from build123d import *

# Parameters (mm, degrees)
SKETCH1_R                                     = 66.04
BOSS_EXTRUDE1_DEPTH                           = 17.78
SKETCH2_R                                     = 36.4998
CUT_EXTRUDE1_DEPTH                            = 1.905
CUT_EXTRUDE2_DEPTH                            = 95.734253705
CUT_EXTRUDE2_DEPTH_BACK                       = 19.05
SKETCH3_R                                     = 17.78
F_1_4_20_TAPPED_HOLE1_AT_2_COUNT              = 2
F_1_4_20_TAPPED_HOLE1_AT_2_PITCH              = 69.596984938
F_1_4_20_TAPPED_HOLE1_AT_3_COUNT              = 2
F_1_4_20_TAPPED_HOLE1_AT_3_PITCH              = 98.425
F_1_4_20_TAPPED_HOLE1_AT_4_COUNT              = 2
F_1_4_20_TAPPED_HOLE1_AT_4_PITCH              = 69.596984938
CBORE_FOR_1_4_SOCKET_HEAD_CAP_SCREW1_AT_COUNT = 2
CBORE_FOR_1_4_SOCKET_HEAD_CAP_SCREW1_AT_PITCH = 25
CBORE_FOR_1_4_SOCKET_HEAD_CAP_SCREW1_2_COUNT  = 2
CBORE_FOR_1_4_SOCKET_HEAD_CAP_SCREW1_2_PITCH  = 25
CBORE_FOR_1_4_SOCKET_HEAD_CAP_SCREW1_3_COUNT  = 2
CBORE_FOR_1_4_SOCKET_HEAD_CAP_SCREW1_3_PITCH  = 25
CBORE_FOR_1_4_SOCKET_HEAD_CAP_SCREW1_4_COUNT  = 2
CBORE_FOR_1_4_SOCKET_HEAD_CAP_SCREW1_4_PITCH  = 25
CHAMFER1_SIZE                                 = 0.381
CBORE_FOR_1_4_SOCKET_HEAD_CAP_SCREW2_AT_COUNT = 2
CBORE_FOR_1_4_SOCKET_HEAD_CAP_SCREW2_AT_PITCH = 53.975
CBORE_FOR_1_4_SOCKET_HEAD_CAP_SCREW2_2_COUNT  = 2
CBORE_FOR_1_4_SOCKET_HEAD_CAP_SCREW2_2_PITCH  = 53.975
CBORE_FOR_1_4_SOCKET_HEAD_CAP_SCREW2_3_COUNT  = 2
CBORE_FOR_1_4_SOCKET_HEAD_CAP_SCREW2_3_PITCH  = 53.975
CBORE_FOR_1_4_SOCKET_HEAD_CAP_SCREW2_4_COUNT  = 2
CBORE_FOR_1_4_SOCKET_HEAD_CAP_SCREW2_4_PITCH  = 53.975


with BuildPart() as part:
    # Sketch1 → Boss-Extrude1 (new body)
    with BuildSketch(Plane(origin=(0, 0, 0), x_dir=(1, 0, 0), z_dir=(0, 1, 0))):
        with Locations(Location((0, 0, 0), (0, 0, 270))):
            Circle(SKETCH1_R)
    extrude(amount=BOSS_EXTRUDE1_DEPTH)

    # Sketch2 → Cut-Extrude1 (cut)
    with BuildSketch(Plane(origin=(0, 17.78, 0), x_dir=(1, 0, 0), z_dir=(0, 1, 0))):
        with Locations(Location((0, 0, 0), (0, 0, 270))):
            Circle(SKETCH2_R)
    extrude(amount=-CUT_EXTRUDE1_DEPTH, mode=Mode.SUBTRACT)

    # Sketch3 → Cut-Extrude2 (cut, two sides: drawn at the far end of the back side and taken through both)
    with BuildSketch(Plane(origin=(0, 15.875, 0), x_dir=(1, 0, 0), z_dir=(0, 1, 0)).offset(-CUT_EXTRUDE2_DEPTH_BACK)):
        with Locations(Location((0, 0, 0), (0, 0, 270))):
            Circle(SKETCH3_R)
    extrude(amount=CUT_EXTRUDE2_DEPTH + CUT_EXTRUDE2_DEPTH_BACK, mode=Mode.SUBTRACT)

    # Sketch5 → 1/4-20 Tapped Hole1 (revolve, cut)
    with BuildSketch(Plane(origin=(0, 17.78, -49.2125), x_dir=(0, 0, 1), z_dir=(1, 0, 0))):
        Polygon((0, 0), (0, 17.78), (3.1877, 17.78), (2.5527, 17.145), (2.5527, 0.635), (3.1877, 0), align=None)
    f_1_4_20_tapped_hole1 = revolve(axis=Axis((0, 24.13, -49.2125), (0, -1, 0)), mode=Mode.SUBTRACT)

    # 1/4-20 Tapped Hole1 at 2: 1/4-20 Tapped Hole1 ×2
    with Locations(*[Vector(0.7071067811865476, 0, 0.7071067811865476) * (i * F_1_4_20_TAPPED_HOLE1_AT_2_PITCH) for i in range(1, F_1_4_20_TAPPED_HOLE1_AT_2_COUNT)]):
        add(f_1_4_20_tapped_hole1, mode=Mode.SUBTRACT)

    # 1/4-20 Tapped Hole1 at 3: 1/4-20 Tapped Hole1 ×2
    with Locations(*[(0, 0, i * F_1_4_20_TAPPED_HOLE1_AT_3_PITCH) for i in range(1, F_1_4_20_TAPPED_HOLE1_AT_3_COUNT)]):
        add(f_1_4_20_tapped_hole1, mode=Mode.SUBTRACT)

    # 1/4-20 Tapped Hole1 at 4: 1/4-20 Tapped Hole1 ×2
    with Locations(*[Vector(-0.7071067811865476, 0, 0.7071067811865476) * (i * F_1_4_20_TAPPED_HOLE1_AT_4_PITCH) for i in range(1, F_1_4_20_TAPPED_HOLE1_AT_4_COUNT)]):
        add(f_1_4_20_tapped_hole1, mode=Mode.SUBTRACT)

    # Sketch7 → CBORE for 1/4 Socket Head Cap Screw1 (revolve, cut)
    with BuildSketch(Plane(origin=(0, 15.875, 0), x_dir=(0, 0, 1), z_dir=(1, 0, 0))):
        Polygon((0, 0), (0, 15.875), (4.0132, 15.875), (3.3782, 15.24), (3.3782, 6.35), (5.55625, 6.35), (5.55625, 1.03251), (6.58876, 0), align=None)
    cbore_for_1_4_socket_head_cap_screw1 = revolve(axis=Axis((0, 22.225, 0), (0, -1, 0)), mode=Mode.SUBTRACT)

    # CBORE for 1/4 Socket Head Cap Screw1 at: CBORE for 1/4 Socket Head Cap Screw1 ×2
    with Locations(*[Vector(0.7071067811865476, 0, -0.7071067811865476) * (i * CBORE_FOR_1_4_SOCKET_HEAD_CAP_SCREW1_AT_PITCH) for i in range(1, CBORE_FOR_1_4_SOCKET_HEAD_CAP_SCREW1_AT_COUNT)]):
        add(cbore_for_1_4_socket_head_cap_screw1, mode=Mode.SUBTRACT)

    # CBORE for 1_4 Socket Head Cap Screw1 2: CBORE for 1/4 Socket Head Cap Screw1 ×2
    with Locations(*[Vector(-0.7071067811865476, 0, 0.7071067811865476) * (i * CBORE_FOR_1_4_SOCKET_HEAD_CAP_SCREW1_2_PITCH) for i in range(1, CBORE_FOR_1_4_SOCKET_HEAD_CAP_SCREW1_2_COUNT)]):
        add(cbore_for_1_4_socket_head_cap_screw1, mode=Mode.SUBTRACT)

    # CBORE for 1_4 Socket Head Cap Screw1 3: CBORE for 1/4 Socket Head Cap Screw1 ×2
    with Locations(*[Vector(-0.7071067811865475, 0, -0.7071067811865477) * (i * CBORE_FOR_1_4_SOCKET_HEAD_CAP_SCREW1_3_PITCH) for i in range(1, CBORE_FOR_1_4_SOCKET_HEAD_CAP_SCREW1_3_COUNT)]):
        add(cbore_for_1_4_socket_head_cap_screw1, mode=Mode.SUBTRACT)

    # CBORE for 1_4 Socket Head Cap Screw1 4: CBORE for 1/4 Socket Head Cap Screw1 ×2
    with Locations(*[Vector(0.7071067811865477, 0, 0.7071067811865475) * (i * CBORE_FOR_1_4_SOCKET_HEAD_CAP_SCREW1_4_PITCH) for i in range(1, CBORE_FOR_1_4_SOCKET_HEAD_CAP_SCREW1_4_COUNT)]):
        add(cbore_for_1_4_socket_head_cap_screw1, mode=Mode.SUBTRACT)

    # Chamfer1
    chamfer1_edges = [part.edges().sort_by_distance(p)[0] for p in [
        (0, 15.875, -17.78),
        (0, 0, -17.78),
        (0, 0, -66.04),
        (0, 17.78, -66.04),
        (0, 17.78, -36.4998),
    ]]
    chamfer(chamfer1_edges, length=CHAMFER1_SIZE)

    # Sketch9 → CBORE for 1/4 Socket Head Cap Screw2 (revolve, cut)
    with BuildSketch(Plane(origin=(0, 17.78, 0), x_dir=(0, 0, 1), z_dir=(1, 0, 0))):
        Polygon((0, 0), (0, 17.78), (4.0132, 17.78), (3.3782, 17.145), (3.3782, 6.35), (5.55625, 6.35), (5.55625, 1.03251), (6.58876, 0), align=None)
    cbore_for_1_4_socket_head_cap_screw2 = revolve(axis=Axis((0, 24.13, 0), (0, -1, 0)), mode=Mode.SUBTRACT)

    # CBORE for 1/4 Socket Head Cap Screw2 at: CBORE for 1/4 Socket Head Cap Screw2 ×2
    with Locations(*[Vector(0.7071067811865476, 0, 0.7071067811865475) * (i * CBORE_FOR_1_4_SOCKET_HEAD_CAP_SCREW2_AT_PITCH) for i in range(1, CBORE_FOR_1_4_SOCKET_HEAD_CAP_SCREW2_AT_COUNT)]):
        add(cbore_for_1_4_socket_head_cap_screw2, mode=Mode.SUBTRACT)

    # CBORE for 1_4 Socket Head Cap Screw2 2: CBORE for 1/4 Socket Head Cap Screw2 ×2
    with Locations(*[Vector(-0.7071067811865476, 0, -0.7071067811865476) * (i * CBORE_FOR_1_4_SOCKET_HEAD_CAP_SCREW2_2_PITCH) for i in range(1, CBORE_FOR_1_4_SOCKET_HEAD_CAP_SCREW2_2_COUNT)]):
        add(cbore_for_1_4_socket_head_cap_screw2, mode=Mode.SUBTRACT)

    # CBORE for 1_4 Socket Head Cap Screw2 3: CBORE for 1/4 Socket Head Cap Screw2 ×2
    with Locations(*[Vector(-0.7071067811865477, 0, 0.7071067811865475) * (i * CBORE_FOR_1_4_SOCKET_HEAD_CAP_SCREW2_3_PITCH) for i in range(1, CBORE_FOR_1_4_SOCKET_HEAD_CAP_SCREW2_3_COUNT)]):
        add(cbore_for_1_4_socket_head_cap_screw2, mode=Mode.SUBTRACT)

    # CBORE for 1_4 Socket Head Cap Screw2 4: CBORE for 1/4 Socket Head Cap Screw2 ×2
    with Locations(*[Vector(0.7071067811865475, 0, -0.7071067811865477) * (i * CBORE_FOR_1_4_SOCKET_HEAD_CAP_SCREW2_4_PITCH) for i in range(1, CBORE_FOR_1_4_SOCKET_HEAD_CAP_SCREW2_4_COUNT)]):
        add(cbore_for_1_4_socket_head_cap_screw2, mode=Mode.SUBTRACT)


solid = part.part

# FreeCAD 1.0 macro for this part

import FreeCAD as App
import Part
import Sketcher
from FreeCAD import Vector
Q = App.Units.Quantity


def edges_at(feature, points):
    """Names of the edges that pass closest to the given points."""
    edges = feature.Shape.Edges
    near = lambda p: min(range(len(edges)), key=lambda i: edges[i].distToShape(Part.Vertex(*p))[0])
    return sorted({f"Edge{near(p) + 1}" for p in points})


def add_polygon(sketch, points):
    """Adds a closed chain of lines whose ends are joined by coincident constraints."""
    first, n = sketch.GeometryCount, len(points)
    for a, b in zip(points, points[1:] + points[:1]):
        sketch.addGeometry(Part.LineSegment(App.Vector(*a, 0), App.Vector(*b, 0)), False)
    for i in range(n):
        sketch.addConstraint(Sketcher.Constraint("Coincident", first + i, 2, first + (i + 1) % n, 1))

doc = App.newDocument("Part")
body = doc.addObject("PartDesign::Body", "Body")

# Sketch on XZ plane
sketch1 = body.newObject("Sketcher::SketchObject", "Sketch")
sketch1.AttachmentSupport = (doc.getObject("XZ_Plane"), [""])
sketch1.MapMode = "FlatFace"
sketch1.addGeometry(Part.Circle(Vector(0, 0, 0), Vector(0, 0, 1), 66), False)
sketch1.addConstraint([
    Sketcher.Constraint("Coincident", 0, 3, -1, 1),
    Sketcher.Constraint("Diameter", 0, Q("5.2 in")),
])
pad1 = body.newObject("PartDesign::Pad", "Pad")
pad1.Profile = sketch1
pad1.Length = Q("0.7 in")
pad1.Reversed = True

# Sketch on XZ plane
sketch2 = body.newObject("Sketcher::SketchObject", "Sketch001")
sketch2.AttachmentSupport = (doc.getObject("XZ_Plane"), [""])
sketch2.MapMode = "FlatFace"
sketch2.AttachmentOffset = App.Placement(Vector(0, 0, -0.7 * 25.4), App.Rotation())
sketch2.addGeometry(Part.Circle(Vector(0, 0, 0), Vector(0, 0, 1), 36), False)
sketch2.addConstraint([
    Sketcher.Constraint("Coincident", 0, 3, -1, 1),
    Sketcher.Constraint("Diameter", 0, Q("2.874 in")),
])
pocket1 = body.newObject("PartDesign::Pocket", "Pocket")
pocket1.Profile = sketch2
pocket1.Length = Q("0.075 in")
pocket1.Reversed = True

# Sketch on XZ plane
sketch3 = body.newObject("Sketcher::SketchObject", "Sketch002")
sketch3.AttachmentSupport = (doc.getObject("XZ_Plane"), [""])
sketch3.MapMode = "FlatFace"
sketch3.AttachmentOffset = App.Placement(Vector(0, 0, -0.625 * 25.4), App.Rotation())
sketch3.addGeometry(Part.Circle(Vector(0, 0, 0), Vector(0, 0, 1), 18), False)
sketch3.addConstraint([
    Sketcher.Constraint("Coincident", 0, 3, -1, 1),
    Sketcher.Constraint("Diameter", 0, Q("1.4 in")),
])
pocket2 = body.newObject("PartDesign::Pocket", "Pocket001")
pocket2.Profile = sketch3
pocket2.Type = "ThroughAll"
pocket2.Midplane = True

# Sketch on YZ plane
sketch4 = body.newObject("Sketcher::SketchObject", "Sketch003")
sketch4.AttachmentSupport = (doc.getObject("YZ_Plane"), [""])
sketch4.MapMode = "FlatFace"
add_polygon(sketch4, [(0, -49.2), (17.8, -49.2), (17.8, -46), (17.1, -46.7), (0.6, -46.7), (0, -46)])  # lines 0-5
sketch4.addGeometry(Part.LineSegment(Vector(17.8, -49.2, 0), Vector(0, -49.2, 0)), True)  # axis
sketch4.addConstraint([
    Sketcher.Constraint("Horizontal", 0),
    Sketcher.Constraint("Vertical", 1),
    Sketcher.Constraint("Horizontal", 3),
    Sketcher.Constraint("Vertical", 5),
    Sketcher.Constraint("Horizontal", 6),
    Sketcher.Constraint("Coincident", 6, 1, 0, 2),
    Sketcher.Constraint("PointOnObject", 4, 2, -2),
    Sketcher.Constraint("PointOnObject", 6, 2, -2),
    Sketcher.Constraint("Perpendicular", 2, 4),
    Sketcher.Constraint("Horizontal", 1, 2, 4, 2),
    Sketcher.Constraint("Equal", 2, 4),
    Sketcher.Constraint("DistanceX", 0, 1, 0, 2, Q("0.7 in")),
    Sketcher.Constraint("DistanceX", 3, 2, 3, 1, Q("0.65 in")),
    Sketcher.Constraint("DistanceY", 1, 1, 1, 2, Q("0.1255 in")),
    Sketcher.Constraint("DistanceY", 0, 2, -1, 1, Q("1.9375 in")),
])
groove = body.newObject("PartDesign::Groove", "Groove")
groove.Profile = sketch4
groove.ReferenceAxis = (sketch4, ["Axis0"])
groove.Angle = 360
doc.recompute()

datumline = body.newObject("PartDesign::Line", "DatumLine")
datumline.Placement = App.Placement(Vector(0, 0, 0), App.Rotation(Vector(0, 0, 1), Vector(0.707106781, 0, 0.707106781)))
linearpattern = body.newObject("PartDesign::LinearPattern", "LinearPattern")
linearpattern.Originals = [groove]
linearpattern.Direction = (datumline, [""])
linearpattern.Mode = "offset"
linearpattern.Offset = 69.596985
linearpattern.Occurrences = 2
body.Tip = linearpattern
doc.recompute()

linearpattern2 = body.newObject("PartDesign::LinearPattern", "LinearPattern001")
linearpattern2.Originals = [groove]
linearpattern2.Direction = (doc.getObject("Z_Axis"), [""])
linearpattern2.Mode = "offset"
linearpattern2.Offset = Q("3.875 in")
linearpattern2.Occurrences = 2
body.Tip = linearpattern2
doc.recompute()

datumline2 = body.newObject("PartDesign::Line", "DatumLine001")
datumline2.Placement = App.Placement(Vector(0, 0, 0), App.Rotation(Vector(0, 0, 1), Vector(-0.707106781, 0, 0.707106781)))
linearpattern3 = body.newObject("PartDesign::LinearPattern", "LinearPattern002")
linearpattern3.Originals = [groove]
linearpattern3.Direction = (datumline2, [""])
linearpattern3.Mode = "offset"
linearpattern3.Offset = 69.596985
linearpattern3.Occurrences = 2
body.Tip = linearpattern3

# Sketch on YZ plane
sketch5 = body.newObject("Sketcher::SketchObject", "Sketch004")
sketch5.AttachmentSupport = (doc.getObject("YZ_Plane"), [""])
sketch5.MapMode = "FlatFace"
add_polygon(sketch5, [(0, 0), (15.9, 0), (15.9, 6.6), (14.8, 5.6), (9.5, 5.6), (9.5, 3.4), (0.6, 3.4), (0, 4)])  # lines 0-7
sketch5.addConstraint([
    Sketcher.Constraint("Horizontal", 0),
    Sketcher.Constraint("Vertical", 1),
    Sketcher.Constraint("Horizontal", 3),
    Sketcher.Constraint("Vertical", 4),
    Sketcher.Constraint("Horizontal", 5),
    Sketcher.Constraint("Vertical", 7),
    Sketcher.Constraint("Coincident", 7, 2, -1, 1),
    Sketcher.Constraint("Perpendicular", 2, 6),
    Sketcher.Constraint("Angle", 2, Q("-135 deg")),
    Sketcher.Constraint("DistanceX", 5, 2, 5, 1, Q("0.35 in")),
    Sketcher.Constraint("DistanceX", 5, 2, 1, 2, Q("0.6 in")),
    Sketcher.Constraint("DistanceX", 0, 1, 0, 2, Q("0.625 in")),
    Sketcher.Constraint("DistanceY", 7, 2, 7, 1, Q("0.158 in")),
    Sketcher.Constraint("DistanceY", 1, 1, 1, 2, Q("0.2594 in")),
    Sketcher.Constraint("DistanceY", -1, 1, 2, 2, Q("0.21875 in")),
])
groove2 = body.newObject("PartDesign::Groove", "Groove001")
groove2.Profile = sketch5
groove2.ReferenceAxis = (sketch5, ["H_Axis"])
groove2.Angle = 360
doc.recompute()

datumline3 = body.newObject("PartDesign::Line", "DatumLine002")
datumline3.Placement = App.Placement(Vector(0, 0, 0), App.Rotation(Vector(0, 0, 1), Vector(0.707106781, 0, -0.707106781)))
linearpattern4 = body.newObject("PartDesign::LinearPattern", "LinearPattern003")
linearpattern4.Originals = [groove2]
linearpattern4.Direction = (datumline3, [""])
linearpattern4.Mode = "offset"
linearpattern4.Offset = 25
linearpattern4.Occurrences = 2
body.Tip = linearpattern4
doc.recompute()

datumline4 = body.newObject("PartDesign::Line", "DatumLine003")
datumline4.Placement = App.Placement(Vector(0, 0, 0), App.Rotation(Vector(0, 0, 1), Vector(-0.707106781, 0, 0.707106781)))
linearpattern5 = body.newObject("PartDesign::LinearPattern", "LinearPattern004")
linearpattern5.Originals = [groove2]
linearpattern5.Direction = (datumline4, [""])
linearpattern5.Mode = "offset"
linearpattern5.Offset = 25
linearpattern5.Occurrences = 2
body.Tip = linearpattern5
doc.recompute()

datumline5 = body.newObject("PartDesign::Line", "DatumLine004")
datumline5.Placement = App.Placement(Vector(0, 0, 0), App.Rotation(Vector(0, 0, 1), Vector(-0.707106781, 0, -0.707106781)))
linearpattern6 = body.newObject("PartDesign::LinearPattern", "LinearPattern005")
linearpattern6.Originals = [groove2]
linearpattern6.Direction = (datumline5, [""])
linearpattern6.Mode = "offset"
linearpattern6.Offset = 25
linearpattern6.Occurrences = 2
body.Tip = linearpattern6
doc.recompute()

datumline6 = body.newObject("PartDesign::Line", "DatumLine005")
datumline6.Placement = App.Placement(Vector(0, 0, 0), App.Rotation(Vector(0, 0, 1), Vector(0.707106781, 0, 0.707106781)))
linearpattern7 = body.newObject("PartDesign::LinearPattern", "LinearPattern006")
linearpattern7.Originals = [groove2]
linearpattern7.Direction = (datumline6, [""])
linearpattern7.Mode = "offset"
linearpattern7.Offset = 25
linearpattern7.Occurrences = 2
body.Tip = linearpattern7
doc.recompute()

chamfer = body.newObject("PartDesign::Chamfer", "Chamfer")
chamfer.Base = (linearpattern7, edges_at(linearpattern7, [
    (0, 15.875, -17.78),
    (0, 0, -17.78),
    (0, 0, -66.04),
    (0, 17.78, -66.04),
    (0, 17.78, -36.5),
]))
chamfer.Size = Q("0.015 in")

# Sketch on YZ plane
sketch6 = body.newObject("Sketcher::SketchObject", "Sketch005")
sketch6.AttachmentSupport = (doc.getObject("YZ_Plane"), [""])
sketch6.MapMode = "FlatFace"
add_polygon(sketch6, [(0, 0), (17.8, 0), (17.8, 6.6), (16.7, 5.6), (11.4, 5.6), (11.4, 3.4), (0.6, 3.4), (0, 4)])  # lines 0-7
sketch6.addConstraint([
    Sketcher.Constraint("Horizontal", 0),
    Sketcher.Constraint("Vertical", 1),
    Sketcher.Constraint("Horizontal", 3),
    Sketcher.Constraint("Vertical", 4),
    Sketcher.Constraint("Horizontal", 5),
    Sketcher.Constraint("Vertical", 7),
    Sketcher.Constraint("Coincident", 7, 2, -1, 1),
    Sketcher.Constraint("Perpendicular", 2, 6),
    Sketcher.Constraint("DistanceX", 0, 1, 0, 2, Q("0.7 in")),
    Sketcher.Constraint("Angle", 2, Q("-135 deg")),
    Sketcher.Constraint("DistanceX", 5, 2, 5, 1, Q("0.425 in")),
    Sketcher.Constraint("DistanceY", 7, 2, 7, 1, Q("0.158 in")),
    Sketcher.Constraint("DistanceX", -1, 1, 3, 2, Q("0.45 in")),
    Sketcher.Constraint("DistanceY", 1, 1, 1, 2, Q("0.2594 in")),
    Sketcher.Constraint("DistanceY", -1, 1, 2, 2, Q("0.21875 in")),
])
groove3 = body.newObject("PartDesign::Groove", "Groove002")
groove3.Profile = sketch6
groove3.ReferenceAxis = (sketch6, ["H_Axis"])
groove3.Angle = 360
doc.recompute()

datumline7 = body.newObject("PartDesign::Line", "DatumLine006")
datumline7.Placement = App.Placement(Vector(0, 0, 0), App.Rotation(Vector(0, 0, 1), Vector(0.707106781, 0, 0.707106781)))
linearpattern8 = body.newObject("PartDesign::LinearPattern", "LinearPattern007")
linearpattern8.Originals = [groove3]
linearpattern8.Direction = (datumline7, [""])
linearpattern8.Mode = "offset"
linearpattern8.Offset = Q("2.125 in")
linearpattern8.Occurrences = 2
body.Tip = linearpattern8
doc.recompute()

datumline8 = body.newObject("PartDesign::Line", "DatumLine007")
datumline8.Placement = App.Placement(Vector(0, 0, 0), App.Rotation(Vector(0, 0, 1), Vector(-0.707106781, 0, -0.707106781)))
linearpattern9 = body.newObject("PartDesign::LinearPattern", "LinearPattern008")
linearpattern9.Originals = [groove3]
linearpattern9.Direction = (datumline8, [""])
linearpattern9.Mode = "offset"
linearpattern9.Offset = Q("2.125 in")
linearpattern9.Occurrences = 2
body.Tip = linearpattern9
doc.recompute()

datumline9 = body.newObject("PartDesign::Line", "DatumLine008")
datumline9.Placement = App.Placement(Vector(0, 0, 0), App.Rotation(Vector(0, 0, 1), Vector(-0.707106781, 0, 0.707106781)))
linearpattern10 = body.newObject("PartDesign::LinearPattern", "LinearPattern009")
linearpattern10.Originals = [groove3]
linearpattern10.Direction = (datumline9, [""])
linearpattern10.Mode = "offset"
linearpattern10.Offset = Q("2.125 in")
linearpattern10.Occurrences = 2
body.Tip = linearpattern10
doc.recompute()

datumline10 = body.newObject("PartDesign::Line", "DatumLine009")
datumline10.Placement = App.Placement(Vector(0, 0, 0), App.Rotation(Vector(0, 0, 1), Vector(0.707106781, 0, -0.707106781)))
linearpattern11 = body.newObject("PartDesign::LinearPattern", "LinearPattern010")
linearpattern11.Originals = [groove3]
linearpattern11.Direction = (datumline10, [""])
linearpattern11.Mode = "offset"
linearpattern11.Offset = Q("2.125 in")
linearpattern11.Occurrences = 2
body.Tip = linearpattern11

doc.recompute()
